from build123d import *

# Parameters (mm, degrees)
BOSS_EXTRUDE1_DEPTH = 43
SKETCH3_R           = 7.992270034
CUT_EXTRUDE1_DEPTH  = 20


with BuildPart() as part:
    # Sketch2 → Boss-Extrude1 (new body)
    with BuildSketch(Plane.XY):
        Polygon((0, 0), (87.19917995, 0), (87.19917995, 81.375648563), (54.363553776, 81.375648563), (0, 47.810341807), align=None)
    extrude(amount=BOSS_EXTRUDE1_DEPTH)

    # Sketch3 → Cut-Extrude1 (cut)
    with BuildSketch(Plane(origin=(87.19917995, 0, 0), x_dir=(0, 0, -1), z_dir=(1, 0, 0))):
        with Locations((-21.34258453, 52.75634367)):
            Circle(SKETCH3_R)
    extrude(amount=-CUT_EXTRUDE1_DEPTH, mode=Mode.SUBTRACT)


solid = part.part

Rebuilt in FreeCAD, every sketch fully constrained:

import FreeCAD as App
import Part
import Sketcher
from FreeCAD import Vector
Q = App.Units.Quantity

doc = App.newDocument("Part")
body = doc.addObject("PartDesign::Body", "Body")

sketch1 = body.newObject("Sketcher::SketchObject", "Sketch")
sketch1.AttachmentSupport = (doc.getObject("XY_Plane"), [""])
sketch1.MapMode = "FlatFace"
sketch1.addGeometry([
    Part.LineSegment(Vector(0, 0, 0), Vector(87, 0, 0)),
    Part.LineSegment(Vector(87, 0, 0), Vector(87, 81, 0)),
    Part.LineSegment(Vector(87, 81, 0), Vector(54, 81, 0)),
    Part.LineSegment(Vector(54, 81, 0), Vector(0, 48, 0)),
    Part.LineSegment(Vector(0, 48, 0), Vector(0, 0, 0)),
], False)
sketch1.addConstraint([
    Sketcher.Constraint("Coincident", 0, 2, 1, 1),
    Sketcher.Constraint("Coincident", 1, 2, 2, 1),
    Sketcher.Constraint("Coincident", 2, 2, 3, 1),
    Sketcher.Constraint("Coincident", 3, 2, 4, 1),
    Sketcher.Constraint("Coincident", 4, 2, 0, 1),
    Sketcher.Constraint("Horizontal", 0),
    Sketcher.Constraint("Vertical", 1),
    Sketcher.Constraint("Horizontal", 2),
    Sketcher.Constraint("Vertical", 4),
    Sketcher.Constraint("Coincident", 4, 2, -1, 1),
    Sketcher.Constraint("DistanceX", 0, 1, 0, 2, Q("87.19918 mm")),
    Sketcher.Constraint("DistanceY", 1, 1, 1, 2, Q("81.375649 mm")),
    Sketcher.Constraint("DistanceY", 4, 2, 4, 1, Q("47.810342 mm")),
    Sketcher.Constraint("DistanceX", 2, 2, 2, 1, Q("32.835626 mm")),
])
pad1 = body.newObject("PartDesign::Pad", "Pad")
pad1.Profile = sketch1
pad1.Length = 43

sketch2 = body.newObject("Sketcher::SketchObject", "Sketch001")
sketch2.AttachmentSupport = (doc.getObject("YZ_Plane"), [""])
sketch2.MapMode = "FlatFace"
sketch2.AttachmentOffset = App.Placement(Vector(0, 0, 87.19918), App.Rotation())
sketch2.addGeometry(Part.Circle(Vector(53, 21, 0), Vector(0, 0, 1), 8), False)
sketch2.addConstraint([
    Sketcher.Constraint("Diameter", 0, Q("15.98454 mm")),
    Sketcher.Constraint("DistanceX", -1, 1, 0, 3, Q("52.756344 mm")),
    Sketcher.Constraint("DistanceY", -1, 1, 0, 3, Q("21.342585 mm")),
])
pocket1 = body.newObject("PartDesign::Pocket", "Pocket")
pocket1.Profile = sketch2
pocket1.Length = 20

doc.recompute()
